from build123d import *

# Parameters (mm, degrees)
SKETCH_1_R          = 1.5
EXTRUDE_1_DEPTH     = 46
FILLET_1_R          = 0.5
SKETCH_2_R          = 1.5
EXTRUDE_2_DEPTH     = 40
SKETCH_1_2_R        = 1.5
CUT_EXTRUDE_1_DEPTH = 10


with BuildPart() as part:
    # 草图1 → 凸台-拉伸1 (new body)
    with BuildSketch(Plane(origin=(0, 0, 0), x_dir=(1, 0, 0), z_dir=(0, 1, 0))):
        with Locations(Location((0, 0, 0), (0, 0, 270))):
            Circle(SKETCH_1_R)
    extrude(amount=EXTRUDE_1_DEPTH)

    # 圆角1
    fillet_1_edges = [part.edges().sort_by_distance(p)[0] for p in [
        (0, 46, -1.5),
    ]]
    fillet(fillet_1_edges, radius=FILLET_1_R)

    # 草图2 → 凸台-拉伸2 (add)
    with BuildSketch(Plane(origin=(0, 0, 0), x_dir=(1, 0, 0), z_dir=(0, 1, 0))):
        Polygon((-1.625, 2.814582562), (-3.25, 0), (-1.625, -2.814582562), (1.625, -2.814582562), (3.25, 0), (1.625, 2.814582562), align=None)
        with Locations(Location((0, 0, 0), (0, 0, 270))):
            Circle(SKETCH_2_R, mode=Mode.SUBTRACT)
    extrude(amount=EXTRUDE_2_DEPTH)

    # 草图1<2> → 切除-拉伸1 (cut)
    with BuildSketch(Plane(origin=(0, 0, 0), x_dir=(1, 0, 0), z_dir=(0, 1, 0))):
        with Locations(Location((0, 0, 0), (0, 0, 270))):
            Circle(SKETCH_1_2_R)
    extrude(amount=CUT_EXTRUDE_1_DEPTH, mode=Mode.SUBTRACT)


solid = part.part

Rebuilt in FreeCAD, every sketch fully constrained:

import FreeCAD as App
import Part
import Sketcher

V = App.Vector
Q = App.Units.Quantity


def edges_at(feature, points):
    """Names of the edges that pass closest to the given points."""
    edges = feature.Shape.Edges
    near = lambda p: min(range(len(edges)), key=lambda i: edges[i].distToShape(Part.Vertex(*p))[0])
    return sorted({f"Edge{near(p) + 1}" for p in points})


def add_polygon(sketch, points):
    """Adds a closed chain of lines whose ends are joined by coincident constraints."""
    first, n = sketch.GeometryCount, len(points)
    for a, b in zip(points, points[1:] + points[:1]):
        sketch.addGeometry(Part.LineSegment(App.Vector(*a, 0), App.Vector(*b, 0)), False)
    for i in range(n):
        sketch.addConstraint(Sketcher.Constraint("Coincident", first + i, 2, first + (i + 1) % n, 1))

doc = App.newDocument("Part")
params = doc.addObject("Spreadsheet::Sheet", "Params")
for row, (alias, value) in enumerate([
    ("sketch1_diameter", "3 mm"),
    ("pad1_length", "46 mm"),
    ("fillet_radius", "0.5 mm"),
    ("sketch2_diameter", "3 mm"),
    ("sketch2_width", "3.25 mm"),
    ("pad2_length", "40 mm"),
    ("sketch3_diameter", "3 mm"),
    ("pocket1_length", "10 mm"),
], start=1):
    params.set(f"A{row}", alias)
    params.set(f"B{row}", "=" + value)
    params.setAlias(f"B{row}", alias)

body = doc.addObject("PartDesign::Body", "Body")

sketch1 = body.newObject("Sketcher::SketchObject", "Sketch")
sketch1.AttachmentSupport = (doc.getObject("XZ_Plane"), [""])
sketch1.MapMode = "FlatFace"
sketch1.addGeometry(Part.Circle(V(0, 0, 0), V(0, 0, 1), 1.5), False)
sketch1.addConstraint([
    Sketcher.Constraint("Coincident", 0, 3, -1, 1),
    Sketcher.Constraint("Diameter", 0, 3.0),
])
sketch1.setExpression("Constraints[1]", "Params.sketch1_diameter")
pad1 = body.newObject("PartDesign::Pad", "Pad")
pad1.Profile = sketch1
pad1.setExpression("Length", "Params.pad1_length")
pad1.Reversed = True
doc.recompute()

fillet = body.newObject("PartDesign::Fillet", "Fillet")
fillet.Base = (pad1, edges_at(pad1, [(0, 46, -1.5)]))
fillet.setExpression("Radius", "Params.fillet_radius")

sketch2 = body.newObject("Sketcher::SketchObject", "Sketch001")
sketch2.AttachmentSupport = (doc.getObject("XZ_Plane"), [""])
sketch2.MapMode = "FlatFace"
add_polygon(sketch2, [(-1.6, -2.8), (-3.2, 0), (-1.6, 2.8), (1.6, 2.8), (3.2, 0), (1.6, -2.8)])
sketch2.addGeometry(Part.Circle(V(0, 0, 0), V(0, 0, 1), 1.5), False)
sketch2.addConstraint([
    Sketcher.Constraint("Horizontal", 2),
    Sketcher.Constraint("Horizontal", 5),
    Sketcher.Constraint("Coincident", 6, 3, -1, 1),
    Sketcher.Constraint("Symmetric", 0, 2, 3, 2, -1, 1),
    Sketcher.Constraint("Symmetric", 1, 2, 4, 2, -1, 1),
    Sketcher.Constraint("PointOnObject", 0, 2, -1),
    Sketcher.Constraint("Parallel", 0, 3),
    Sketcher.Constraint("Vertical", 2, 2, 4, 2),
    Sketcher.Constraint("Diameter", 6, 3.0),
    Sketcher.Constraint("Angle", 0, Q("120 deg")),
    Sketcher.Constraint("DistanceX", 2, 1, 2, 2, 3.25),
    Sketcher.Constraint("DistanceX", 0, 2, 3, 2, 6.5),
])
sketch2.setExpression("Constraints[14]", "Params.sketch2_diameter")
sketch2.setExpression("Constraints[16]", "Params.sketch2_width")
pad2 = body.newObject("PartDesign::Pad", "Pad001")
pad2.Profile = sketch2
pad2.setExpression("Length", "Params.pad2_length")
pad2.Reversed = True

sketch3 = body.newObject("Sketcher::SketchObject", "Sketch002")
sketch3.AttachmentSupport = (doc.getObject("XZ_Plane"), [""])
sketch3.MapMode = "FlatFace"
sketch3.addGeometry(Part.Circle(V(0, 0, 0), V(0, 0, 1), 1.5), False)
sketch3.addConstraint([
    Sketcher.Constraint("Coincident", 0, 3, -1, 1),
    Sketcher.Constraint("Diameter", 0, 3.0),
])
sketch3.setExpression("Constraints[1]", "Params.sketch3_diameter")
pocket1 = body.newObject("PartDesign::Pocket", "Pocket")
pocket1.Profile = sketch3
pocket1.setExpression("Length", "Params.pocket1_length")

doc.recompute()
